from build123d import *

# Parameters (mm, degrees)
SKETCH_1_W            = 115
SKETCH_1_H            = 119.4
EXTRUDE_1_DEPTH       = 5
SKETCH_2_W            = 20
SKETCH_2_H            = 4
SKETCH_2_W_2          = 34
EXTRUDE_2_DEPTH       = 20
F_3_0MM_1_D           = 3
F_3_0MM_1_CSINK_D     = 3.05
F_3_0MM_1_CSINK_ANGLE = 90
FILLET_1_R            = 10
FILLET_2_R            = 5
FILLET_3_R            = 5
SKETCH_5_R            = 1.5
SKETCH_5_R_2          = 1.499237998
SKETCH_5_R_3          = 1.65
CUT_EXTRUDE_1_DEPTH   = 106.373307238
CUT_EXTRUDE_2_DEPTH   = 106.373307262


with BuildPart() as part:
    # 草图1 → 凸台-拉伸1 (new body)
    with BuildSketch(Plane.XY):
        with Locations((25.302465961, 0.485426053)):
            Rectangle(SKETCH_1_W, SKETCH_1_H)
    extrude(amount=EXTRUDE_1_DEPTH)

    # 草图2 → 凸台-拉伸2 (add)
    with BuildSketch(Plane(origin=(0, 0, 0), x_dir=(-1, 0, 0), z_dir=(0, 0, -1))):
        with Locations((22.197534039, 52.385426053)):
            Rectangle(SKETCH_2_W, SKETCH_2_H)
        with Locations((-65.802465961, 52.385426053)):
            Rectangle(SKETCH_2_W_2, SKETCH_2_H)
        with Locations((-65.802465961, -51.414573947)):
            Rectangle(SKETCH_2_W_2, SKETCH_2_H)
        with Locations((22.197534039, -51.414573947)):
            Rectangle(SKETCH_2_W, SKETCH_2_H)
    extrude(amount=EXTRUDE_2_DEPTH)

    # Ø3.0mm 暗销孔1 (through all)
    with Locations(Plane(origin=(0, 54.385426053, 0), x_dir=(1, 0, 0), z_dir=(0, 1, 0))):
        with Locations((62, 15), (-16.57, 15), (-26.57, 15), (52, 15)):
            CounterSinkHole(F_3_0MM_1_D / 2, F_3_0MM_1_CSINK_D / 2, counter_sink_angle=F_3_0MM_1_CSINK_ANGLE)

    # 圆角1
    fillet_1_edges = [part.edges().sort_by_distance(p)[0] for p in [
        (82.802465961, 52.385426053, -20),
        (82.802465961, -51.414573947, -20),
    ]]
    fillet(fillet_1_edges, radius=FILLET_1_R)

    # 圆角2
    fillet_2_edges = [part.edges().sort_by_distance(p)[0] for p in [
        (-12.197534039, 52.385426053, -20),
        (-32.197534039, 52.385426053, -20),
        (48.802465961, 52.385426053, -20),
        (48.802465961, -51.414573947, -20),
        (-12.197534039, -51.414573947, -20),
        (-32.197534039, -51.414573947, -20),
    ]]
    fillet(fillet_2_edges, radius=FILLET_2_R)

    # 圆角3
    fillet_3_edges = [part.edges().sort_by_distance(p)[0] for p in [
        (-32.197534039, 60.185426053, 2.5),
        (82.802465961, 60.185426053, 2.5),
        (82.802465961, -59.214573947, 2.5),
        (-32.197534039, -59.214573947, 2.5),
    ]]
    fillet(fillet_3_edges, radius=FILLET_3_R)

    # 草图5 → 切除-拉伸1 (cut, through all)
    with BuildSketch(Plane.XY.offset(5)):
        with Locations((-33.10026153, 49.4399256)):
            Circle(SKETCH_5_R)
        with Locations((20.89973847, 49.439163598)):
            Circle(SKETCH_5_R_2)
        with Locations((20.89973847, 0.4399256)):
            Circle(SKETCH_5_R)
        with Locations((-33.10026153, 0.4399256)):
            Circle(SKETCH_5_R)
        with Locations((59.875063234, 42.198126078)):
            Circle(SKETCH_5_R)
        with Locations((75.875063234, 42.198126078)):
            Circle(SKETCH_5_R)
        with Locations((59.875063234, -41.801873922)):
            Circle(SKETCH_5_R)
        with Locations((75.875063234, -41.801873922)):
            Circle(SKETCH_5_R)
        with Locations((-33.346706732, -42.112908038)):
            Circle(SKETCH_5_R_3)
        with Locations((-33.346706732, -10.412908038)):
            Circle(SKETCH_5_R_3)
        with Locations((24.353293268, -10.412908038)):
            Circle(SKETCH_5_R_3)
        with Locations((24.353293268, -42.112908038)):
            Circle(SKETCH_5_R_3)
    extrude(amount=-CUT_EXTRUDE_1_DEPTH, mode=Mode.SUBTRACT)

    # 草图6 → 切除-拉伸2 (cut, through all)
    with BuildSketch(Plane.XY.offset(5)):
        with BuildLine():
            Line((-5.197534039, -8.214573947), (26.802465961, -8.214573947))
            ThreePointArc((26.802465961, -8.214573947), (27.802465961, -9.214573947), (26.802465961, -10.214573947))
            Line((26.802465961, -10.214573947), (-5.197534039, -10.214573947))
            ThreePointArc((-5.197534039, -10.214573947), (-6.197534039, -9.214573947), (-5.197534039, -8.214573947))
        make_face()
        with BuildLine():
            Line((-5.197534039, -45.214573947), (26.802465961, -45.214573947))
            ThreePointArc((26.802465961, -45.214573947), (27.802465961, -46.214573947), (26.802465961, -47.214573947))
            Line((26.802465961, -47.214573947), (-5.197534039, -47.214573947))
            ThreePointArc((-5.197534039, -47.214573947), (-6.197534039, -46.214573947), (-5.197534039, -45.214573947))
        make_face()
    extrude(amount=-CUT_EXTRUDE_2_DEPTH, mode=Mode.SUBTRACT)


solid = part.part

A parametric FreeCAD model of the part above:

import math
import FreeCAD as App
import Part
import Sketcher


def edges_at(feature, points):
    """Names of the edges that pass closest to the given points."""
    edges = feature.Shape.Edges
    near = lambda p: min(range(len(edges)), key=lambda i: edges[i].distToShape(Part.Vertex(*p))[0])
    return sorted({f"Edge{near(p) + 1}" for p in points})

doc = App.newDocument("Part")
params = doc.addObject("Spreadsheet::Sheet", "Params")
for row, (alias, value) in enumerate([
    ("sketch1_width", "115 mm"),
    ("sketch1_height", "119.4 mm"),
    ("pad1_length", "5 mm"),
    ("sketch2_width", "20 mm"),
    ("sketch2_width2", "34 mm"),
    ("sketch2_height", "4 mm"),
    ("pad2_length", "20 mm"),
    ("sketch3_diameter", "3 mm"),
    ("hole_diameter", "3 mm"),
    ("hole_csink_diameter", "3.05 mm"),
    ("fillet_radius", "10 mm"),
    ("fillet2_radius", "5 mm"),
    ("fillet3_radius", "5 mm"),
    ("sketch4_diameter", "3 mm"),
    ("sketch4_diameter2", "3.3 mm"),
    ("sketch5_radius", "1 mm"),
    ("sketch5_width", "32 mm"),
], start=1):
    params.set(f"A{row}", alias)
    params.set(f"B{row}", "=" + value)
    params.setAlias(f"B{row}", alias)

body = doc.addObject("PartDesign::Body", "Body")

# Sketch on XY plane
sketch1 = body.newObject("Sketcher::SketchObject", "Sketch")
sketch1.AttachmentSupport = (doc.getObject("XY_Plane"), [""])
sketch1.MapMode = "FlatFace"
sketch1.addGeometry([
    Part.LineSegment(App.Vector(-32, 60, 0), App.Vector(-32, -59, 0)),
    Part.LineSegment(App.Vector(-32, -59, 0), App.Vector(83, -59, 0)),
    Part.LineSegment(App.Vector(83, -59, 0), App.Vector(83, 60, 0)),
    Part.LineSegment(App.Vector(83, 60, 0), App.Vector(-32, 60, 0)),
], False)
sketch1.addConstraint([
    Sketcher.Constraint("Coincident", 0, 2, 1, 1),
    Sketcher.Constraint("Coincident", 1, 2, 2, 1),
    Sketcher.Constraint("Coincident", 2, 2, 3, 1),
    Sketcher.Constraint("Coincident", 3, 2, 0, 1),
    Sketcher.Constraint("Vertical", 0),
    Sketcher.Constraint("Horizontal", 1),
    Sketcher.Constraint("Vertical", 2),
    Sketcher.Constraint("Horizontal", 3),
    Sketcher.Constraint("DistanceX", 1, 1, 1, 2, 115.0),
    Sketcher.Constraint("DistanceY", 0, 2, 0, 1, 119.4),
    Sketcher.Constraint("DistanceX", 0, 2, -1, 1, 32.197534),
    Sketcher.Constraint("DistanceY", 0, 2, -1, 1, 59.214574),
])
sketch1.setExpression("Constraints[8]", "Params.sketch1_width")
sketch1.setExpression("Constraints[9]", "Params.sketch1_height")
pad1 = body.newObject("PartDesign::Pad", "Pad")
pad1.Profile = sketch1
pad1.setExpression("Length", "Params.pad1_length")

# Sketch on XY plane
sketch2 = body.newObject("Sketcher::SketchObject", "Sketch001")
sketch2.AttachmentSupport = (doc.getObject("XY_Plane"), [""])
sketch2.MapMode = "FlatFace"
sketch2.addGeometry([
    Part.LineSegment(App.Vector(-12.2, 54.4, 0), App.Vector(-12.2, 50.4, 0)),  # 0
    Part.LineSegment(App.Vector(-12.2, 50.4, 0), App.Vector(-32.2, 50.4, 0)),  # 1
    Part.LineSegment(App.Vector(-32.2, 50.4, 0), App.Vector(-32.2, 54.4, 0)),  # 2
    Part.LineSegment(App.Vector(-32.2, 54.4, 0), App.Vector(-12.2, 54.4, 0)),  # 3
    Part.LineSegment(App.Vector(82.8, 54.4, 0), App.Vector(82.8, 50.4, 0)),  # 4
    Part.LineSegment(App.Vector(82.8, 50.4, 0), App.Vector(48.8, 50.4, 0)),  # 5
    Part.LineSegment(App.Vector(48.8, 50.4, 0), App.Vector(48.8, 54.4, 0)),  # 6
    Part.LineSegment(App.Vector(48.8, 54.4, 0), App.Vector(82.8, 54.4, 0)),  # 7
    Part.LineSegment(App.Vector(82.8, -49.4, 0), App.Vector(82.8, -53.4, 0)),  # 8
    Part.LineSegment(App.Vector(82.8, -53.4, 0), App.Vector(48.8, -53.4, 0)),  # 9
    Part.LineSegment(App.Vector(48.8, -53.4, 0), App.Vector(48.8, -49.4, 0)),  # 10
    Part.LineSegment(App.Vector(48.8, -49.4, 0), App.Vector(82.8, -49.4, 0)),  # 11
    Part.LineSegment(App.Vector(-12.2, -49.4, 0), App.Vector(-12.2, -53.4, 0)),  # 12
    Part.LineSegment(App.Vector(-12.2, -53.4, 0), App.Vector(-32.2, -53.4, 0)),  # 13
    Part.LineSegment(App.Vector(-32.2, -53.4, 0), App.Vector(-32.2, -49.4, 0)),  # 14
    Part.LineSegment(App.Vector(-32.2, -49.4, 0), App.Vector(-12.2, -49.4, 0)),  # 15
], False)
sketch2.addConstraint([
    Sketcher.Constraint("Coincident", 0, 2, 1, 1),
    Sketcher.Constraint("Coincident", 1, 2, 2, 1),
    Sketcher.Constraint("Coincident", 2, 2, 3, 1),
    Sketcher.Constraint("Coincident", 3, 2, 0, 1),
    Sketcher.Constraint("Coincident", 4, 2, 5, 1),
    Sketcher.Constraint("Coincident", 5, 2, 6, 1),
    Sketcher.Constraint("Coincident", 6, 2, 7, 1),
    Sketcher.Constraint("Coincident", 7, 2, 4, 1),
    Sketcher.Constraint("Coincident", 8, 2, 9, 1),
    Sketcher.Constraint("Coincident", 9, 2, 10, 1),
    Sketcher.Constraint("Coincident", 10, 2, 11, 1),
    Sketcher.Constraint("Coincident", 11, 2, 8, 1),
    Sketcher.Constraint("Coincident", 12, 2, 13, 1),
    Sketcher.Constraint("Coincident", 13, 2, 14, 1),
    Sketcher.Constraint("Coincident", 14, 2, 15, 1),
    Sketcher.Constraint("Coincident", 15, 2, 12, 1),
    Sketcher.Constraint("Vertical", 0),
    Sketcher.Constraint("Horizontal", 1),
    Sketcher.Constraint("Vertical", 2),
    Sketcher.Constraint("Horizontal", 3),
    Sketcher.Constraint("Vertical", 4),
    Sketcher.Constraint("Horizontal", 5),
    Sketcher.Constraint("Vertical", 6),
    Sketcher.Constraint("Horizontal", 7),
    Sketcher.Constraint("Vertical", 8),
    Sketcher.Constraint("Horizontal", 9),
    Sketcher.Constraint("Vertical", 10),
    Sketcher.Constraint("Horizontal", 11),
    Sketcher.Constraint("Vertical", 12),
    Sketcher.Constraint("Horizontal", 13),
    Sketcher.Constraint("Vertical", 14),
    Sketcher.Constraint("Horizontal", 15),
    Sketcher.Constraint("Horizontal", 1, 2, 4, 2),
    Sketcher.Constraint("Horizontal", 3, 2, 6, 2),
    Sketcher.Constraint("Horizontal", 9, 2, 12, 2),
    Sketcher.Constraint("Horizontal", 11, 2, 14, 2),
    Sketcher.Constraint("Vertical", 7, 2, 8, 2),
    Sketcher.Constraint("Vertical", 6, 2, 9, 2),
    Sketcher.Constraint("Vertical", 3, 2, 12, 2),
    Sketcher.Constraint("Vertical", 2, 2, 13, 2),
    Sketcher.Constraint("Equal", 6, 8),
    Sketcher.Constraint("DistanceX", 1, 2, 1, 1, 20.0),
    Sketcher.Constraint("DistanceX", 5, 2, 5, 1, 34.0),
    Sketcher.Constraint("DistanceY", 0, 2, 0, 1, 4.0),
    Sketcher.Constraint("DistanceX", 0, 2, 4, 2, 95.0),
    Sketcher.Constraint("DistanceY", 8, 2, 4, 2, 103.8),
    Sketcher.Constraint("DistanceX", 0, 2, -1, 1, 12.197534),
    Sketcher.Constraint("DistanceY", -1, 1, 0, 2, 50.385426),
])
sketch2.setExpression("Constraints[41]", "Params.sketch2_width")
sketch2.setExpression("Constraints[42]", "Params.sketch2_width2")
sketch2.setExpression("Constraints[43]", "Params.sketch2_height")
pad2 = body.newObject("PartDesign::Pad", "Pad001")
pad2.Profile = sketch2
pad2.setExpression("Length", "Params.pad2_length")
pad2.Reversed = True

# Sketch on XZ plane
sketch3 = body.newObject("Sketcher::SketchObject", "Sketch002")
sketch3.AttachmentSupport = (doc.getObject("XZ_Plane"), [""])
sketch3.MapMode = "FlatFace"
sketch3.AttachmentOffset = App.Placement(App.Vector(0, 0, -54.385426), App.Rotation())
sketch3.addGeometry([
    Part.Circle(App.Vector(62, -15, 0), App.Vector(0, 0, 1), 1.5),
    Part.Circle(App.Vector(-16.6, -15, 0), App.Vector(0, 0, 1), 1.5),
    Part.Circle(App.Vector(-26.6, -15, 0), App.Vector(0, 0, 1), 1.5),
    Part.Circle(App.Vector(52, -15, 0), App.Vector(0, 0, 1), 1.5),
], False)
sketch3.addConstraint([
    Sketcher.Constraint("Equal", 0, 1),
    Sketcher.Constraint("Equal", 1, 2),
    Sketcher.Constraint("Equal", 2, 3),
    Sketcher.Constraint("Horizontal", 0, 3, 1, 3),
    Sketcher.Constraint("Horizontal", 1, 3, 2, 3),
    Sketcher.Constraint("Horizontal", 2, 3, 3, 3),
    Sketcher.Constraint("Diameter", 0, 3.0),
    Sketcher.Constraint("DistanceX", -1, 1, 0, 3, 62.0),
    Sketcher.Constraint("DistanceY", 0, 3, -1, 1, 15.0),
    Sketcher.Constraint("DistanceX", -1, 1, 3, 3, 52.0),
    Sketcher.Constraint("DistanceX", 2, 3, 1, 3, 10.0),
    Sketcher.Constraint("DistanceX", 1, 3, -1, 1, 16.57),
])
sketch3.setExpression("Constraints[6]", "Params.sketch3_diameter")
doc.recompute()
hole = body.newObject("PartDesign::Hole", "Hole")
hole.Profile = sketch3
hole.ThreadType = "None"
hole.setExpression("Diameter", "Params.hole_diameter")
hole.DepthType = "ThroughAll"
hole.HoleCutType = "Countersink"
hole.setExpression("HoleCutDiameter", "Params.hole_csink_diameter")
hole.HoleCutCountersinkAngle = 90
hole.Reversed = True
doc.recompute()

fillet = body.newObject("PartDesign::Fillet", "Fillet")
fillet.Base = (hole, edges_at(hole, [(82.802, 52.385, -20), (82.802, -51.415, -20)]))
fillet.setExpression("Radius", "Params.fillet_radius")
doc.recompute()

fillet2 = body.newObject("PartDesign::Fillet", "Fillet001")
fillet2.Base = (fillet, edges_at(fillet, [
    (-12.198, 52.385, -20),
    (-32.198, 52.385, -20),
    (48.802, 52.385, -20),
    (48.802, -51.415, -20),
    (-12.198, -51.415, -20),
    (-32.198, -51.415, -20),
]))
fillet2.setExpression("Radius", "Params.fillet2_radius")
doc.recompute()

fillet3 = body.newObject("PartDesign::Fillet", "Fillet002")
fillet3.Base = (fillet2, edges_at(fillet2, [
    (-32.198, 60.185, 2.5),
    (82.802, 60.185, 2.5),
    (82.802, -59.215, 2.5),
    (-32.198, -59.215, 2.5),
]))
fillet3.setExpression("Radius", "Params.fillet3_radius")

# Sketch on XY plane
sketch4 = body.newObject("Sketcher::SketchObject", "Sketch003")
sketch4.AttachmentSupport = (doc.getObject("XY_Plane"), [""])
sketch4.MapMode = "FlatFace"
sketch4.AttachmentOffset = App.Placement(App.Vector(0, 0, 5), App.Rotation())
sketch4.addGeometry([
    Part.Circle(App.Vector(-33.1, 49.4, 0), App.Vector(0, 0, 1), 1.5),  # 0
    Part.Circle(App.Vector(20.9, 49.4, 0), App.Vector(0, 0, 1), 1.5),  # 1
    Part.Circle(App.Vector(20.9, 0.4, 0), App.Vector(0, 0, 1), 1.5),  # 2
    Part.Circle(App.Vector(-33.1, 0.4, 0), App.Vector(0, 0, 1), 1.5),  # 3
    Part.Circle(App.Vector(59.9, 42.2, 0), App.Vector(0, 0, 1), 1.5),  # 4
    Part.Circle(App.Vector(75.9, 42.2, 0), App.Vector(0, 0, 1), 1.5),  # 5
    Part.Circle(App.Vector(59.9, -41.8, 0), App.Vector(0, 0, 1), 1.5),  # 6
    Part.Circle(App.Vector(75.9, -41.8, 0), App.Vector(0, 0, 1), 1.5),  # 7
    Part.Circle(App.Vector(-33.3, -42.1, 0), App.Vector(0, 0, 1), 1.6),  # 8
    Part.Circle(App.Vector(-33.3, -10.4, 0), App.Vector(0, 0, 1), 1.6),  # 9
    Part.Circle(App.Vector(24.4, -10.4, 0), App.Vector(0, 0, 1), 1.6),  # 10
    Part.Circle(App.Vector(24.4, -42.1, 0), App.Vector(0, 0, 1), 1.6),  # 11
], False)
sketch4.addConstraint([
    Sketcher.Constraint("Equal", 0, 2),
    Sketcher.Constraint("Equal", 2, 3),
    Sketcher.Constraint("Equal", 3, 4),
    Sketcher.Constraint("Equal", 4, 5),
    Sketcher.Constraint("Equal", 5, 6),
    Sketcher.Constraint("Equal", 6, 7),
    Sketcher.Constraint("Equal", 8, 9),
    Sketcher.Constraint("Equal", 9, 10),
    Sketcher.Constraint("Equal", 10, 11),
    Sketcher.Constraint("Horizontal", 2, 3, 3, 3),
    Sketcher.Constraint("Horizontal", 4, 3, 5, 3),
    Sketcher.Constraint("Horizontal", 6, 3, 7, 3),
    Sketcher.Constraint("Horizontal", 9, 3, 10, 3),
    Sketcher.Constraint("Horizontal", 8, 3, 11, 3),
    Sketcher.Constraint("Vertical", 1, 3, 2, 3),
    Sketcher.Constraint("Vertical", 0, 3, 3, 3),
    Sketcher.Constraint("Vertical", 4, 3, 6, 3),
    Sketcher.Constraint("Vertical", 5, 3, 7, 3),
    Sketcher.Constraint("Vertical", 8, 3, 9, 3),
    Sketcher.Constraint("Vertical", 10, 3, 11, 3),
    Sketcher.Constraint("Diameter", 0, 3.0),
    Sketcher.Constraint("Diameter", 8, 3.3),
    Sketcher.Constraint("DistanceX", 0, 3, 1, 3, 54.0),
    Sketcher.Constraint("DistanceY", 2, 3, 0, 3, 49.0),
    Sketcher.Constraint("DistanceX", 4, 3, 5, 3, 16.0),
    Sketcher.Constraint("DistanceY", 6, 3, 4, 3, 84.0),
    Sketcher.Constraint("DistanceY", 8, 3, 9, 3, 31.7),
    Sketcher.Constraint("DistanceX", 9, 3, 10, 3, 57.7),
    Sketcher.Constraint("Diameter", 1, 2.998476),
    Sketcher.Constraint("DistanceY", 2, 3, 4, 3, 41.7582),
    Sketcher.Constraint("DistanceX", 0, 3, -1, 1, 33.100262),
    Sketcher.Constraint("DistanceY", 8, 3, -1, 1, 42.112908),
    Sketcher.Constraint("DistanceX", 8, 3, 6, 3, 93.22177),
    Sketcher.Constraint("DistanceY", 8, 3, 1, 3, 91.552072),
    Sketcher.Constraint("DistanceY", -1, 1, 0, 3, 49.439926),
    Sketcher.Constraint("DistanceX", -1, 1, 4, 3, 59.875063),
])
sketch4.setExpression("Constraints[20]", "Params.sketch4_diameter")
sketch4.setExpression("Constraints[21]", "Params.sketch4_diameter2")
pocket1 = body.newObject("PartDesign::Pocket", "Pocket")
pocket1.Profile = sketch4
pocket1.Type = "ThroughAll"

# Sketch on XY plane
sketch5 = body.newObject("Sketcher::SketchObject", "Sketch004")
sketch5.AttachmentSupport = (doc.getObject("XY_Plane"), [""])
sketch5.MapMode = "FlatFace"
sketch5.AttachmentOffset = App.Placement(App.Vector(0, 0, 5), App.Rotation())
sketch5.addGeometry([
    Part.LineSegment(App.Vector(26.8, -8.2, 0), App.Vector(-5.2, -8.2, 0)),  # 0
    Part.ArcOfCircle(Part.Circle(App.Vector(-5.2, -9.2, 0), App.Vector(0, 0, 1), 1), math.radians(90), math.radians(270)),  # 1
    Part.LineSegment(App.Vector(-5.2, -10.2, 0), App.Vector(26.8, -10.2, 0)),  # 2
    Part.ArcOfCircle(Part.Circle(App.Vector(26.8, -9.2, 0), App.Vector(0, 0, 1), 1), math.radians(-90), math.radians(90)),  # 3
    Part.LineSegment(App.Vector(26.8, -45.2, 0), App.Vector(-5.2, -45.2, 0)),  # 4
    Part.ArcOfCircle(Part.Circle(App.Vector(-5.2, -46.2, 0), App.Vector(0, 0, 1), 1), math.radians(90), math.radians(270)),  # 5
    Part.LineSegment(App.Vector(-5.2, -47.2, 0), App.Vector(26.8, -47.2, 0)),  # 6
    Part.ArcOfCircle(Part.Circle(App.Vector(26.8, -46.2, 0), App.Vector(0, 0, 1), 1), math.radians(-90), math.radians(90)),  # 7
], False)
sketch5.addConstraint([
    Sketcher.Constraint("Tangent", 0, 2, 1, 1),
    Sketcher.Constraint("Tangent", 1, 2, 2, 1),
    Sketcher.Constraint("Tangent", 2, 2, 3, 1),
    Sketcher.Constraint("Tangent", 3, 2, 0, 1),
    Sketcher.Constraint("Tangent", 4, 2, 5, 1),
    Sketcher.Constraint("Tangent", 5, 2, 6, 1),
    Sketcher.Constraint("Tangent", 6, 2, 7, 1),
    Sketcher.Constraint("Tangent", 7, 2, 4, 1),
    Sketcher.Constraint("Horizontal", 0),
    Sketcher.Constraint("Horizontal", 2),
    Sketcher.Constraint("Horizontal", 4),
    Sketcher.Constraint("Horizontal", 6),
    Sketcher.Constraint("Equal", 3, 5),
    Sketcher.Constraint("Vertical", 1, 3, 5, 3),
    Sketcher.Constraint("Vertical", 3, 3, 7, 3),
    Sketcher.Constraint("Radius", 1, 1.0),
    Sketcher.Constraint("DistanceX", 0, 2, 0, 1, 32.0),
    Sketcher.Constraint("DistanceY", 5, 3, 1, 3, 37.0),
    Sketcher.Constraint("DistanceX", 1, 3, -1, 1, 5.197534),
    Sketcher.Constraint("DistanceY", 1, 3, -1, 1, 9.214574),
])
sketch5.setExpression("Constraints[15]", "Params.sketch5_radius")
sketch5.setExpression("Constraints[16]", "Params.sketch5_width")
pocket2 = body.newObject("PartDesign::Pocket", "Pocket001")
pocket2.Profile = sketch5
pocket2.Type = "ThroughAll"

doc.recompute()
